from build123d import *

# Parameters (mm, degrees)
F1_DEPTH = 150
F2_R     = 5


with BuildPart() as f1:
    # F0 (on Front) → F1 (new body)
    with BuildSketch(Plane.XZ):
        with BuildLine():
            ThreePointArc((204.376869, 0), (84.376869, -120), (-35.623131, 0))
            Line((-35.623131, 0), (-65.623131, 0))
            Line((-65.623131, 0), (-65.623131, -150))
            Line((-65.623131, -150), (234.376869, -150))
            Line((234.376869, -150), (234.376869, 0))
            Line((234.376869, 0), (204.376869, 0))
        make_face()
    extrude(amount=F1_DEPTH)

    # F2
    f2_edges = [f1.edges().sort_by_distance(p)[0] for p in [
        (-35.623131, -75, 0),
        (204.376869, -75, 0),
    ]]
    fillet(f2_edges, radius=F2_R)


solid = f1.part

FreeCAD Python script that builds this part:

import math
import FreeCAD as App
import Part
import Sketcher
Q = App.Units.Quantity


def edges_at(feature, points):
    """Names of the edges that pass closest to the given points."""
    edges = feature.Shape.Edges
    near = lambda p: min(range(len(edges)), key=lambda i: edges[i].distToShape(Part.Vertex(*p))[0])
    return sorted({f"Edge{near(p) + 1}" for p in points})

doc = App.newDocument("Part")
body = doc.addObject("PartDesign::Body", "Body")

sketch1 = body.newObject("Sketcher::SketchObject", "Sketch")
sketch1.AttachmentSupport = (doc.getObject("XZ_Plane"), [""])
sketch1.MapMode = "FlatFace"
sketch1.addGeometry([
    Part.ArcOfCircle(Part.Circle(App.Vector(84, 0, 0), App.Vector(0, 0, 1), 120), math.radians(180), math.radians(360)),
    Part.LineSegment(App.Vector(-36, 0, 0), App.Vector(-66, 0, 0)),
    Part.LineSegment(App.Vector(-66, 0, 0), App.Vector(-66, -150, 0)),
    Part.LineSegment(App.Vector(-66, -150, 0), App.Vector(234, -150, 0)),
    Part.LineSegment(App.Vector(234, -150, 0), App.Vector(234, 0, 0)),
    Part.LineSegment(App.Vector(234, 0, 0), App.Vector(204, 0, 0)),
], False)
sketch1.addConstraint([
    Sketcher.Constraint("Coincident", 0, 1, 1, 1),
    Sketcher.Constraint("Coincident", 1, 2, 2, 1),
    Sketcher.Constraint("Coincident", 2, 2, 3, 1),
    Sketcher.Constraint("Coincident", 3, 2, 4, 1),
    Sketcher.Constraint("Coincident", 4, 2, 5, 1),
    Sketcher.Constraint("Coincident", 5, 2, 0, 2),
    Sketcher.Constraint("Horizontal", 1),
    Sketcher.Constraint("Vertical", 2),
    Sketcher.Constraint("Horizontal", 3),
    Sketcher.Constraint("Vertical", 4),
    Sketcher.Constraint("Horizontal", 5),
    Sketcher.Constraint("PointOnObject", 0, 3, -1),
    Sketcher.Constraint("PointOnObject", 0, 1, -1),
    Sketcher.Constraint("PointOnObject", 4, 2, -1),
    Sketcher.Constraint("Equal", 1, 5),
    Sketcher.Constraint("Radius", 0, Q("120 mm")),
    Sketcher.Constraint("DistanceX", 1, 2, 1, 1, Q("30 mm")),
    Sketcher.Constraint("DistanceY", 2, 2, 2, 1, Q("150 mm")),
    Sketcher.Constraint("DistanceX", -1, 1, 0, 3, Q("84.376869 mm")),
])
pad1 = body.newObject("PartDesign::Pad", "Pad")
pad1.Profile = sketch1
pad1.Length = 150
doc.recompute()

fillet = body.newObject("PartDesign::Fillet", "Fillet")
fillet.Base = (pad1, edges_at(pad1, [(-35.623, -75, 0), (204.377, -75, 0)]))
fillet.Radius = 5

doc.recompute()
